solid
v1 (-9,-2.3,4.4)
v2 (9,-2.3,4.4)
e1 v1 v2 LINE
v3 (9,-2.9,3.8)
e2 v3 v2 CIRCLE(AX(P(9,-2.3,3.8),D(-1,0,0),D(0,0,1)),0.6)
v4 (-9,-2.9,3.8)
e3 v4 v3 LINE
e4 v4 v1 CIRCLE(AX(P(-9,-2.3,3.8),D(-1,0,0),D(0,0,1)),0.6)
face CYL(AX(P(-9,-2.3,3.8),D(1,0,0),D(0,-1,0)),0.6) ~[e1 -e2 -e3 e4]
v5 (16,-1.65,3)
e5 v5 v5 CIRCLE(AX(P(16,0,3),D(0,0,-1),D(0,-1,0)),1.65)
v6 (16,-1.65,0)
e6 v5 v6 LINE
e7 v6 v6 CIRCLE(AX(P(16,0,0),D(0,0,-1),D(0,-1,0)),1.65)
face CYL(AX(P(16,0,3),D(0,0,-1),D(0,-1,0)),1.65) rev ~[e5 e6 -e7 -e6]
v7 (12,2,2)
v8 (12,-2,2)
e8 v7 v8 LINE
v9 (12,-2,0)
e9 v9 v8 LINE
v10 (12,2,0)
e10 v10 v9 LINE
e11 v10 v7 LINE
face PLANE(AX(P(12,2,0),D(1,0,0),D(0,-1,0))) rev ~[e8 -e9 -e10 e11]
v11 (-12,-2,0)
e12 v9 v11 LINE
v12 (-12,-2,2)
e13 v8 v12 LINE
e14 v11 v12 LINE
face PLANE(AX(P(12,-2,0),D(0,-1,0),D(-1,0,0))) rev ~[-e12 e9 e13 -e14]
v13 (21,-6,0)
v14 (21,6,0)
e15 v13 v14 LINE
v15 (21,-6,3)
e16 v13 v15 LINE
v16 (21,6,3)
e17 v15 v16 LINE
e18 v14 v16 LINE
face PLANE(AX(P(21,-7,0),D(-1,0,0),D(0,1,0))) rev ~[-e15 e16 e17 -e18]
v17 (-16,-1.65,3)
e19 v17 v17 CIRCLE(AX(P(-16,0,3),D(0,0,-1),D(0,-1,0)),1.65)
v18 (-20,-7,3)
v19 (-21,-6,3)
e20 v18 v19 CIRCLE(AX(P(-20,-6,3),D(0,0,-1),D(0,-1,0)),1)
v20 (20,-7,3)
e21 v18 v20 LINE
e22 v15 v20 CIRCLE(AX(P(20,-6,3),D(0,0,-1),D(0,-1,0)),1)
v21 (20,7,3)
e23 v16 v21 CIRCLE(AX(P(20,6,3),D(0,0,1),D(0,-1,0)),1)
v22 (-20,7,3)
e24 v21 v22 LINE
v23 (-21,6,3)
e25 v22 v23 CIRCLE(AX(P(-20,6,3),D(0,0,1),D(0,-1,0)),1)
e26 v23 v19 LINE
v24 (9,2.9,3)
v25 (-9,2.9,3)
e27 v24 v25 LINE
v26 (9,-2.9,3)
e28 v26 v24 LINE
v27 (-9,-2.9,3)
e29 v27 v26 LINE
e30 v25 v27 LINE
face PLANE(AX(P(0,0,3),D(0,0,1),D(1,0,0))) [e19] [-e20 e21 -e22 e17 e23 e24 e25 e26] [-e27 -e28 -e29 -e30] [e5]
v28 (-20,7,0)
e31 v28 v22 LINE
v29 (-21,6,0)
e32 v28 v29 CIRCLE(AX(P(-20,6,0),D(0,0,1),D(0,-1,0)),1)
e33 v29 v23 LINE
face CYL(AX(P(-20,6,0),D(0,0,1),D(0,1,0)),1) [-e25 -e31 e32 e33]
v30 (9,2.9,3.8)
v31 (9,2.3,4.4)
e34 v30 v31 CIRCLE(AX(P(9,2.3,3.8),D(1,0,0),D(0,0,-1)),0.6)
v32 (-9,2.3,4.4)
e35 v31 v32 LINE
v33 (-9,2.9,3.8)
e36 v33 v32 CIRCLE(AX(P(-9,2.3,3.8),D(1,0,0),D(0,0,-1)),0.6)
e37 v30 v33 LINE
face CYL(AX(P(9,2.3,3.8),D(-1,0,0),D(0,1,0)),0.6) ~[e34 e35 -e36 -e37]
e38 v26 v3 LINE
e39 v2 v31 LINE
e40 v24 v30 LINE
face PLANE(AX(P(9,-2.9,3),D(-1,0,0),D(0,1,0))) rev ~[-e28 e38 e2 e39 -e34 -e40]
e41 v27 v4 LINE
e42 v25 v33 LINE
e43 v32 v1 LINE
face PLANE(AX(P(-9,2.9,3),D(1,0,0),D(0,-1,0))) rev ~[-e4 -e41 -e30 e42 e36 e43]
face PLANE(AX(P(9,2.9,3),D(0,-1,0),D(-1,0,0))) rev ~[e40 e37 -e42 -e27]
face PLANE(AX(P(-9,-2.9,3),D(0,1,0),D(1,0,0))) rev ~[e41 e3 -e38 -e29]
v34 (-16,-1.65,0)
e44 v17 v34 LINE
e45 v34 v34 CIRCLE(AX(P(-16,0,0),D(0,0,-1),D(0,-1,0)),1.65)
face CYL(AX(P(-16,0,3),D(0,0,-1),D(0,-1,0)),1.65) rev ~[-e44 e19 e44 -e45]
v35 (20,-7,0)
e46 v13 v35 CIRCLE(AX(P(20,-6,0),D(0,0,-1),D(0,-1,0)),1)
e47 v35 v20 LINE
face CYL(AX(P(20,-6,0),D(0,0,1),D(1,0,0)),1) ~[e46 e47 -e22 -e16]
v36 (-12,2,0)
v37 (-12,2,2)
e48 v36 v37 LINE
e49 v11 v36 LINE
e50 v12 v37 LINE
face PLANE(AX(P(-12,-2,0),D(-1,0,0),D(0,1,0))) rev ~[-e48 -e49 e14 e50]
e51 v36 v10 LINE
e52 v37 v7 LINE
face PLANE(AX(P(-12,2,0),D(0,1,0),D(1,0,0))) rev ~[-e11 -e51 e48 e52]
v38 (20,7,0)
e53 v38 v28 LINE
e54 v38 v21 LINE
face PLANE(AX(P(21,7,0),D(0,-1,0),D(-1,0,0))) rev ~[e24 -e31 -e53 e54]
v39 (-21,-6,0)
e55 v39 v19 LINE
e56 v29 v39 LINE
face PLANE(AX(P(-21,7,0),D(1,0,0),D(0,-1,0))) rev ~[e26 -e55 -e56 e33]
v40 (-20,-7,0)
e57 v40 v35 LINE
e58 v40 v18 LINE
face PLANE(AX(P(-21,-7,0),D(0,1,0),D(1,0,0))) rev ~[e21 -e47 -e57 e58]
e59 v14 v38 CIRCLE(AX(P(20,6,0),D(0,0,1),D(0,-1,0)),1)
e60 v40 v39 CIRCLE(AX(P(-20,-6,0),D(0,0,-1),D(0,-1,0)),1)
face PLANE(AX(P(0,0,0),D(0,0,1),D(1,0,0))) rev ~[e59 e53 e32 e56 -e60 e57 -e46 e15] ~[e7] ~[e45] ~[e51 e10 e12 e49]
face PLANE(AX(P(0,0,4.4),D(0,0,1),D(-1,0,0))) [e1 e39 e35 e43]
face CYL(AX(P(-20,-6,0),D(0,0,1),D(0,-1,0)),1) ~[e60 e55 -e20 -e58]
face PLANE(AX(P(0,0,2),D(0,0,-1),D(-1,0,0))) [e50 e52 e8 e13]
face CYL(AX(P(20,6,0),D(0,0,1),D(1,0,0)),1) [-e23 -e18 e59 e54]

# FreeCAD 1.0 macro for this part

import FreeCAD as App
import Part
import Sketcher
from FreeCAD import Vector
Q = App.Units.Quantity


def edges_at(feature, points):
    """Names of the edges that pass closest to the given points."""
    edges = feature.Shape.Edges
    near = lambda p: min(range(len(edges)), key=lambda i: edges[i].distToShape(Part.Vertex(*p))[0])
    return sorted({f"Edge{near(p) + 1}" for p in points})

doc = App.newDocument("Part")
body = doc.addObject("PartDesign::Body", "Body")

sketch1 = body.newObject("Sketcher::SketchObject", "Sketch")
sketch1.AttachmentSupport = (doc.getObject("XY_Plane"), [""])
sketch1.MapMode = "FlatFace"
sketch1.addGeometry([
    Part.LineSegment(Vector(21, -7, 0), Vector(21, 7, 0)),
    Part.LineSegment(Vector(21, 7, 0), Vector(-21, 7, 0)),
    Part.LineSegment(Vector(-21, 7, 0), Vector(-21, -7, 0)),
    Part.LineSegment(Vector(-21, -7, 0), Vector(21, -7, 0)),
], False)
sketch1.addConstraint([
    Sketcher.Constraint("Coincident", 0, 2, 1, 1),
    Sketcher.Constraint("Coincident", 1, 2, 2, 1),
    Sketcher.Constraint("Coincident", 2, 2, 3, 1),
    Sketcher.Constraint("Coincident", 3, 2, 0, 1),
    Sketcher.Constraint("Vertical", 0),
    Sketcher.Constraint("Horizontal", 1),
    Sketcher.Constraint("Vertical", 2),
    Sketcher.Constraint("Horizontal", 3),
    Sketcher.Constraint("Symmetric", 0, 2, 2, 2, -1, 1),
    Sketcher.Constraint("DistanceX", 1, 2, 1, 1, Q("42 mm")),
    Sketcher.Constraint("DistanceY", 0, 1, 0, 2, Q("14 mm")),
])
pad1 = body.newObject("PartDesign::Pad", "Pad")
pad1.Profile = sketch1
pad1.Length = 3

sketch2 = body.newObject("Sketcher::SketchObject", "Sketch001")
sketch2.AttachmentSupport = (doc.getObject("XY_Plane"), [""])
sketch2.MapMode = "FlatFace"
sketch2.AttachmentOffset = App.Placement(Vector(0, 0, 3), App.Rotation())
sketch2.addGeometry([
    Part.Circle(Vector(-16, 0, 0), Vector(0, 0, 1), 1.6),
    Part.Circle(Vector(16, 0, 0), Vector(0, 0, 1), 1.6),
], False)
sketch2.addConstraint([
    Sketcher.Constraint("Equal", 0, 1),
    Sketcher.Constraint("Symmetric", 0, 3, 1, 3, -1, 1),
    Sketcher.Constraint("PointOnObject", 0, 3, -1),
    Sketcher.Constraint("Diameter", 0, Q("3.3 mm")),
    Sketcher.Constraint("DistanceX", 0, 3, -1, 1, Q("16 mm")),
])
doc.recompute()
hole = body.newObject("PartDesign::Hole", "Hole")
hole.Profile = sketch2
hole.ThreadType = "None"
hole.Diameter = 3.3
hole.DepthType = "Dimension"
hole.Depth = 5
hole.DrillPoint = "Flat"

sketch3 = body.newObject("Sketcher::SketchObject", "Sketch002")
sketch3.AttachmentSupport = (doc.getObject("XY_Plane"), [""])
sketch3.MapMode = "FlatFace"
sketch3.addGeometry([
    Part.LineSegment(Vector(12, 2, 0), Vector(12, -2, 0)),
    Part.LineSegment(Vector(12, -2, 0), Vector(-12, -2, 0)),
    Part.LineSegment(Vector(-12, -2, 0), Vector(-12, 2, 0)),
    Part.LineSegment(Vector(-12, 2, 0), Vector(12, 2, 0)),
], False)
sketch3.addConstraint([
    Sketcher.Constraint("Coincident", 0, 2, 1, 1),
    Sketcher.Constraint("Coincident", 1, 2, 2, 1),
    Sketcher.Constraint("Coincident", 2, 2, 3, 1),
    Sketcher.Constraint("Coincident", 3, 2, 0, 1),
    Sketcher.Constraint("Vertical", 0),
    Sketcher.Constraint("Horizontal", 1),
    Sketcher.Constraint("Vertical", 2),
    Sketcher.Constraint("Horizontal", 3),
    Sketcher.Constraint("Symmetric", 0, 2, 2, 2, -1, 1),
    Sketcher.Constraint("DistanceX", 1, 2, 1, 1, Q("24 mm")),
    Sketcher.Constraint("DistanceY", 0, 2, 0, 1, Q("4 mm")),
])
pocket1 = body.newObject("PartDesign::Pocket", "Pocket")
pocket1.Profile = sketch3
pocket1.Length = 2
pocket1.Reversed = True

sketch4 = body.newObject("Sketcher::SketchObject", "Sketch003")
sketch4.AttachmentSupport = (doc.getObject("XY_Plane"), [""])
sketch4.MapMode = "FlatFace"
sketch4.AttachmentOffset = App.Placement(Vector(0, 0, 3), App.Rotation())
sketch4.addGeometry([
    Part.LineSegment(Vector(9, -3, 0), Vector(9, 3, 0)),
    Part.LineSegment(Vector(9, 3, 0), Vector(-9, 3, 0)),
    Part.LineSegment(Vector(-9, 3, 0), Vector(-9, -3, 0)),
    Part.LineSegment(Vector(-9, -3, 0), Vector(9, -3, 0)),
], False)
sketch4.addConstraint([
    Sketcher.Constraint("Coincident", 0, 2, 1, 1),
    Sketcher.Constraint("Coincident", 1, 2, 2, 1),
    Sketcher.Constraint("Coincident", 2, 2, 3, 1),
    Sketcher.Constraint("Coincident", 3, 2, 0, 1),
    Sketcher.Constraint("Vertical", 0),
    Sketcher.Constraint("Horizontal", 1),
    Sketcher.Constraint("Vertical", 2),
    Sketcher.Constraint("Horizontal", 3),
    Sketcher.Constraint("Symmetric", 0, 2, 2, 2, -1, 1),
    Sketcher.Constraint("DistanceX", 1, 2, 1, 1, Q("18 mm")),
    Sketcher.Constraint("DistanceY", 0, 1, 0, 2, Q("5.8 mm")),
])
pad2 = body.newObject("PartDesign::Pad", "Pad001")
pad2.Profile = sketch4
pad2.Length = 1.4
doc.recompute()

fillet = body.newObject("PartDesign::Fillet", "Fillet")
fillet.Base = (pad2, edges_at(pad2, [(0, -2.9, 4.4), (0, 2.9, 4.4)]))
fillet.Radius = 0.6
doc.recompute()

fillet2 = body.newObject("PartDesign::Fillet", "Fillet001")
fillet2.Base = (fillet, edges_at(fillet, [
    (-21, 7, 1.5),
    (21, 7, 1.5),
    (21, -7, 1.5),
    (-21, -7, 1.5),
]))
fillet2.Radius = 1

doc.recompute()
